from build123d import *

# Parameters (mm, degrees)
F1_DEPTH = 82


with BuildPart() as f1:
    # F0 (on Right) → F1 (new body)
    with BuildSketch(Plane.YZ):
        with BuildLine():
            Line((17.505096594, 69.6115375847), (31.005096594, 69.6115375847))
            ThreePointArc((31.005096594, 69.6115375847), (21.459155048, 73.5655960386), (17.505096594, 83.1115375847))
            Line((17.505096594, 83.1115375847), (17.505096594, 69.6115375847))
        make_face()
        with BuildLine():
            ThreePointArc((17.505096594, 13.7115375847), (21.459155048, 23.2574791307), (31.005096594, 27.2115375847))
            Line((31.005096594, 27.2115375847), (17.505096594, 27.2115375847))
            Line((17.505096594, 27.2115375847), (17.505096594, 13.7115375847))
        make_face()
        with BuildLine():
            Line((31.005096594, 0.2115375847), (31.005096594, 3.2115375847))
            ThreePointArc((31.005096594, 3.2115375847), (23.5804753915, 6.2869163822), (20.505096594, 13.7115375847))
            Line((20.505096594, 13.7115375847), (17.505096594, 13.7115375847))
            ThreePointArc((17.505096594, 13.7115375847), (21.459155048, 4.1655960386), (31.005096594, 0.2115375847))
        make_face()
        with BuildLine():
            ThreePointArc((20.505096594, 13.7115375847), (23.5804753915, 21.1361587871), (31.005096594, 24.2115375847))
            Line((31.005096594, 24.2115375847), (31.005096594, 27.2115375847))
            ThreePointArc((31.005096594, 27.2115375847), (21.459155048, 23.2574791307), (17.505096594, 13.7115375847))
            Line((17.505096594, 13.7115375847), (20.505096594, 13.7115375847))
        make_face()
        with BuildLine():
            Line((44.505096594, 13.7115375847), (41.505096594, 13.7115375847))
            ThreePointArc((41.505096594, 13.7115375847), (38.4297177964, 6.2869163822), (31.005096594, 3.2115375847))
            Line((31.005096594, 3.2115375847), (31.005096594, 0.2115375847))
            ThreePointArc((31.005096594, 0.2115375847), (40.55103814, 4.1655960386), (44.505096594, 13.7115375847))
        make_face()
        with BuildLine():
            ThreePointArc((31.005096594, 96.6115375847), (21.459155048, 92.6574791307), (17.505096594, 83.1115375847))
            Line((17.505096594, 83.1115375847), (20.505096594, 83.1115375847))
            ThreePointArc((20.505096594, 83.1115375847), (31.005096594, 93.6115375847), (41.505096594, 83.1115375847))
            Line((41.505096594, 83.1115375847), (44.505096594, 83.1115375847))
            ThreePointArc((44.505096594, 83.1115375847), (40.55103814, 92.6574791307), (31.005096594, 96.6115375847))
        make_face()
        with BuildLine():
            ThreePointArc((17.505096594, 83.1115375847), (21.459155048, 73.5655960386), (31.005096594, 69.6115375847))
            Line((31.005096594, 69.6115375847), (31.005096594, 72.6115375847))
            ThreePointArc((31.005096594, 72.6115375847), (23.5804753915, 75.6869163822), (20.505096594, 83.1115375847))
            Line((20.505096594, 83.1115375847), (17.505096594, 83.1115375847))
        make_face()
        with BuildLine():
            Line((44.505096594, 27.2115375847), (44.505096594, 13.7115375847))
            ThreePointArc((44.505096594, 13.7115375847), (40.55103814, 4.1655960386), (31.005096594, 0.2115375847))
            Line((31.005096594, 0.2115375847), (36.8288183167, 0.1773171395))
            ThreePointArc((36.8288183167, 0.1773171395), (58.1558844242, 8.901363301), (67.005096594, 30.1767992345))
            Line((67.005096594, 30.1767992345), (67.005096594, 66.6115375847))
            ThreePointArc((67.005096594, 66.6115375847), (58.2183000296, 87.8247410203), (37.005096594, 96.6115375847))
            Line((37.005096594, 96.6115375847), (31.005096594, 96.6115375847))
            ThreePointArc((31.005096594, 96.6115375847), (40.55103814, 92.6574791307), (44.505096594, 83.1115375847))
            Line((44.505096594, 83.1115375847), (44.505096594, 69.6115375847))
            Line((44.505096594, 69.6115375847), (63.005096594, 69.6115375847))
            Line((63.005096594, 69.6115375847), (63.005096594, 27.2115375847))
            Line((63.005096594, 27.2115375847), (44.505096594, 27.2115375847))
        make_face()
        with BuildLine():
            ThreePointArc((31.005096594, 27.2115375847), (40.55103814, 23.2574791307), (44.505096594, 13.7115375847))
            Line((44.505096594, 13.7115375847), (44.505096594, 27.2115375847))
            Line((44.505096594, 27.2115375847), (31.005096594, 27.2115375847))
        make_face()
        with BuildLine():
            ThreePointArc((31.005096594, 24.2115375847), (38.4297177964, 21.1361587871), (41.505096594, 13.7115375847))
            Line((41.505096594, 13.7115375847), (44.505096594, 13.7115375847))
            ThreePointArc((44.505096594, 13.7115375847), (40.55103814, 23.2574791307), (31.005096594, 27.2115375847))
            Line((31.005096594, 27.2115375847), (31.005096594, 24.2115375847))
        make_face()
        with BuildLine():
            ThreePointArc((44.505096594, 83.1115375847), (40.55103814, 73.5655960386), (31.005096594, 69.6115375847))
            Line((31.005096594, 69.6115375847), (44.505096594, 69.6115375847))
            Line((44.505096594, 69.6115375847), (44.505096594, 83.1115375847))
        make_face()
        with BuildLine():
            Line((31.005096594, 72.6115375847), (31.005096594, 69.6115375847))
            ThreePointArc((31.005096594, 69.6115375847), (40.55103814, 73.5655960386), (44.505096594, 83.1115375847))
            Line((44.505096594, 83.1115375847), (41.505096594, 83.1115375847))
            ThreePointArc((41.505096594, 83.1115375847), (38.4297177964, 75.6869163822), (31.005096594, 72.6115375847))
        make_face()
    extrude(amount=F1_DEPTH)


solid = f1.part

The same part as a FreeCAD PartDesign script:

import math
import FreeCAD as App
import Part
import Sketcher
Q = App.Units.Quantity

doc = App.newDocument("Part")
params = doc.addObject("Spreadsheet::Sheet", "Params")
for row, (alias, value) in enumerate([
    ("sketch1_radius", "30 mm"),
    ("sketch1_radius2", "13.5 mm"),
    ("sketch1_radius3", "10.5 mm"),
    ("sketch1_width", "6 mm"),
    ("sketch1_width2", "45.5 mm"),
    ("pad1_length", "82 mm"),
], start=1):
    params.set(f"A{row}", alias)
    params.set(f"B{row}", "=" + value)
    params.setAlias(f"B{row}", alias)

body = doc.addObject("PartDesign::Body", "Body")

# Sketch on YZ plane
sketch1 = doc.addObject("Sketcher::SketchObject", "Sketch")
body.addObject(sketch1)
sketch1.AttachmentSupport = (doc.YZ_Plane, [""])
sketch1.MapMode = "FlatFace"
sketch1.addGeometry([
    Part.LineSegment(App.Vector(17.505097, 69.611538, 0), App.Vector(63.005097, 69.611538, 0)),  # 0
    Part.LineSegment(App.Vector(63.005097, 69.611538, 0), App.Vector(63.005097, 27.211538, 0)),  # 1
    Part.LineSegment(App.Vector(63.005097, 27.211538, 0), App.Vector(17.505097, 27.211538, 0)),  # 2
    Part.LineSegment(App.Vector(17.505097, 27.211538, 0), App.Vector(17.505097, 13.711538, 0)),  # 3
    Part.ArcOfCircle(Part.Circle(App.Vector(31.005097, 13.711538, 0), App.Vector(0, 0, 1), 13.5), math.radians(180), math.radians(270)),  # 4
    Part.LineSegment(App.Vector(31.005097, 0.211538, 0), App.Vector(36.828818, 0.177317, 0)),  # 5
    Part.ArcOfCircle(Part.Circle(App.Vector(37.005097, 30.176799, 0), App.Vector(0, 0, 1), 30), math.radians(-90.336669), math.radians(0)),  # 6
    Part.LineSegment(App.Vector(67.005097, 30.176799, 0), App.Vector(67.005097, 66.611538, 0)),  # 7
    Part.ArcOfCircle(Part.Circle(App.Vector(37.005097, 66.611538, 0), App.Vector(0, 0, 1), 30), math.radians(0), math.radians(90)),  # 8
    Part.LineSegment(App.Vector(37.005097, 96.611538, 0), App.Vector(31.005097, 96.611538, 0)),  # 9
    Part.ArcOfCircle(Part.Circle(App.Vector(31.005097, 83.111538, 0), App.Vector(0, 0, 1), 13.5), math.radians(90), math.radians(180)),  # 10
    Part.LineSegment(App.Vector(17.505097, 83.111538, 0), App.Vector(17.505097, 69.611538, 0)),  # 11
    Part.ArcOfCircle(Part.Circle(App.Vector(31.005097, 13.711538, 0), App.Vector(0, 0, 1), 10.5), math.radians(90), math.radians(180)),  # 12
    Part.ArcOfCircle(Part.Circle(App.Vector(31.005097, 13.711538, 0), App.Vector(0, 0, 1), 10.5), math.radians(0), math.radians(90)),  # 13
    Part.ArcOfCircle(Part.Circle(App.Vector(31.005097, 13.711538, 0), App.Vector(0, 0, 1), 10.5), math.radians(-90), math.radians(0)),  # 14
    Part.ArcOfCircle(Part.Circle(App.Vector(31.005097, 13.711538, 0), App.Vector(0, 0, 1), 10.5), math.radians(180), math.radians(270)),  # 15
    Part.ArcOfCircle(Part.Circle(App.Vector(31.005097, 83.111538, 0), App.Vector(0, 0, 1), 10.5), math.radians(0), math.radians(180)),  # 16
    Part.ArcOfCircle(Part.Circle(App.Vector(31.005097, 83.111538, 0), App.Vector(0, 0, 1), 10.5), math.radians(-90), math.radians(0)),  # 17
    Part.ArcOfCircle(Part.Circle(App.Vector(31.005097, 83.111538, 0), App.Vector(0, 0, 1), 10.5), math.radians(180), math.radians(270)),  # 18
], False)
sketch1.addConstraint([
    Sketcher.Constraint("Coincident", 0, 2, 1, 1),
    Sketcher.Constraint("Coincident", 1, 2, 2, 1),
    Sketcher.Constraint("Coincident", 2, 2, 3, 1),
    Sketcher.Constraint("Tangent", 3, 2, 4, 1),
    Sketcher.Constraint("Coincident", 4, 2, 5, 1),
    Sketcher.Constraint("Tangent", 5, 2, 6, 1),
    Sketcher.Constraint("Tangent", 6, 2, 7, 1),
    Sketcher.Constraint("Tangent", 7, 2, 8, 1),
    Sketcher.Constraint("Tangent", 8, 2, 9, 1),
    Sketcher.Constraint("Tangent", 9, 2, 10, 1),
    Sketcher.Constraint("Tangent", 10, 2, 11, 1),
    Sketcher.Constraint("Coincident", 11, 2, 0, 1),
    Sketcher.Constraint("Tangent", 12, 1, 13, 2),
    Sketcher.Constraint("Tangent", 13, 1, 14, 2),
    Sketcher.Constraint("Tangent", 14, 1, 15, 2),
    Sketcher.Constraint("Tangent", 15, 1, 12, 2),
    Sketcher.Constraint("Tangent", 16, 1, 17, 2),
    Sketcher.Constraint("Tangent", 17, 1, 18, 2),
    Sketcher.Constraint("Tangent", 18, 1, 16, 2),
    Sketcher.Constraint("Horizontal", 0),
    Sketcher.Constraint("Vertical", 1),
    Sketcher.Constraint("Horizontal", 2),
    Sketcher.Constraint("Vertical", 3),
    Sketcher.Constraint("Vertical", 7),
    Sketcher.Constraint("Horizontal", 9),
    Sketcher.Constraint("Vertical", 11),
    Sketcher.Constraint("Coincident", 12, 3, 4, 3),
    Sketcher.Constraint("Coincident", 16, 3, 10, 3),
    Sketcher.Constraint("Equal", 6, 8),
    Sketcher.Constraint("Equal", 4, 10),
    Sketcher.Constraint("Equal", 12, 13),
    Sketcher.Constraint("Equal", 15, 16),
    Sketcher.Constraint("Horizontal", 3, 2, 13, 1),
    Sketcher.Constraint("Horizontal", 13, 1, 15, 1),
    Sketcher.Constraint("Horizontal", 10, 2, 16, 1),
    Sketcher.Constraint("Horizontal", 16, 1, 18, 1),
    Sketcher.Constraint("Vertical", 4, 3, 10, 3),
    Sketcher.Constraint("Vertical", 18, 3, 4, 2),
    Sketcher.Constraint("Vertical", 9, 2, 12, 1),
    Sketcher.Constraint("Vertical", 12, 1, 14, 1),
    Sketcher.Constraint("Vertical", 14, 1, 17, 1),
    Sketcher.Constraint("Equal", 3, 11),
    Sketcher.Constraint("Radius", 6, Q("30 mm")),
    Sketcher.Constraint("Radius", 4, Q("13.5 mm")),
    Sketcher.Constraint("Radius", 12, Q("10.5 mm")),
    Sketcher.Constraint("DistanceX", 9, 2, 9, 1, Q("6 mm")),
    Sketcher.Constraint("DistanceX", 0, 1, 0, 2, Q("45.5 mm")),
    Sketcher.Constraint("DistanceY", 1, 2, 1, 1, Q("42.4 mm")),
    Sketcher.Constraint("DistanceY", 3, 2, 3, 1, Q("13.5 mm")),
    Sketcher.Constraint("DistanceY", 7, 1, 7, 2, Q("36.434738 mm")),
    Sketcher.Constraint("DistanceY", -1, 1, 6, 3, Q("30.176799 mm")),
    Sketcher.Constraint("DistanceX", -1, 1, 5, 2, Q("36.828818 mm")),
])
sketch1.setExpression("Constraints[42]", "Params.sketch1_radius")
sketch1.setExpression("Constraints[43]", "Params.sketch1_radius2")
sketch1.setExpression("Constraints[44]", "Params.sketch1_radius3")
sketch1.setExpression("Constraints[45]", "Params.sketch1_width")
sketch1.setExpression("Constraints[46]", "Params.sketch1_width2")
pad1 = doc.addObject("PartDesign::Pad", "Pad")
body.addObject(pad1)
pad1.Profile = sketch1
pad1.setExpression("Length", "Params.pad1_length")

doc.recompute()
